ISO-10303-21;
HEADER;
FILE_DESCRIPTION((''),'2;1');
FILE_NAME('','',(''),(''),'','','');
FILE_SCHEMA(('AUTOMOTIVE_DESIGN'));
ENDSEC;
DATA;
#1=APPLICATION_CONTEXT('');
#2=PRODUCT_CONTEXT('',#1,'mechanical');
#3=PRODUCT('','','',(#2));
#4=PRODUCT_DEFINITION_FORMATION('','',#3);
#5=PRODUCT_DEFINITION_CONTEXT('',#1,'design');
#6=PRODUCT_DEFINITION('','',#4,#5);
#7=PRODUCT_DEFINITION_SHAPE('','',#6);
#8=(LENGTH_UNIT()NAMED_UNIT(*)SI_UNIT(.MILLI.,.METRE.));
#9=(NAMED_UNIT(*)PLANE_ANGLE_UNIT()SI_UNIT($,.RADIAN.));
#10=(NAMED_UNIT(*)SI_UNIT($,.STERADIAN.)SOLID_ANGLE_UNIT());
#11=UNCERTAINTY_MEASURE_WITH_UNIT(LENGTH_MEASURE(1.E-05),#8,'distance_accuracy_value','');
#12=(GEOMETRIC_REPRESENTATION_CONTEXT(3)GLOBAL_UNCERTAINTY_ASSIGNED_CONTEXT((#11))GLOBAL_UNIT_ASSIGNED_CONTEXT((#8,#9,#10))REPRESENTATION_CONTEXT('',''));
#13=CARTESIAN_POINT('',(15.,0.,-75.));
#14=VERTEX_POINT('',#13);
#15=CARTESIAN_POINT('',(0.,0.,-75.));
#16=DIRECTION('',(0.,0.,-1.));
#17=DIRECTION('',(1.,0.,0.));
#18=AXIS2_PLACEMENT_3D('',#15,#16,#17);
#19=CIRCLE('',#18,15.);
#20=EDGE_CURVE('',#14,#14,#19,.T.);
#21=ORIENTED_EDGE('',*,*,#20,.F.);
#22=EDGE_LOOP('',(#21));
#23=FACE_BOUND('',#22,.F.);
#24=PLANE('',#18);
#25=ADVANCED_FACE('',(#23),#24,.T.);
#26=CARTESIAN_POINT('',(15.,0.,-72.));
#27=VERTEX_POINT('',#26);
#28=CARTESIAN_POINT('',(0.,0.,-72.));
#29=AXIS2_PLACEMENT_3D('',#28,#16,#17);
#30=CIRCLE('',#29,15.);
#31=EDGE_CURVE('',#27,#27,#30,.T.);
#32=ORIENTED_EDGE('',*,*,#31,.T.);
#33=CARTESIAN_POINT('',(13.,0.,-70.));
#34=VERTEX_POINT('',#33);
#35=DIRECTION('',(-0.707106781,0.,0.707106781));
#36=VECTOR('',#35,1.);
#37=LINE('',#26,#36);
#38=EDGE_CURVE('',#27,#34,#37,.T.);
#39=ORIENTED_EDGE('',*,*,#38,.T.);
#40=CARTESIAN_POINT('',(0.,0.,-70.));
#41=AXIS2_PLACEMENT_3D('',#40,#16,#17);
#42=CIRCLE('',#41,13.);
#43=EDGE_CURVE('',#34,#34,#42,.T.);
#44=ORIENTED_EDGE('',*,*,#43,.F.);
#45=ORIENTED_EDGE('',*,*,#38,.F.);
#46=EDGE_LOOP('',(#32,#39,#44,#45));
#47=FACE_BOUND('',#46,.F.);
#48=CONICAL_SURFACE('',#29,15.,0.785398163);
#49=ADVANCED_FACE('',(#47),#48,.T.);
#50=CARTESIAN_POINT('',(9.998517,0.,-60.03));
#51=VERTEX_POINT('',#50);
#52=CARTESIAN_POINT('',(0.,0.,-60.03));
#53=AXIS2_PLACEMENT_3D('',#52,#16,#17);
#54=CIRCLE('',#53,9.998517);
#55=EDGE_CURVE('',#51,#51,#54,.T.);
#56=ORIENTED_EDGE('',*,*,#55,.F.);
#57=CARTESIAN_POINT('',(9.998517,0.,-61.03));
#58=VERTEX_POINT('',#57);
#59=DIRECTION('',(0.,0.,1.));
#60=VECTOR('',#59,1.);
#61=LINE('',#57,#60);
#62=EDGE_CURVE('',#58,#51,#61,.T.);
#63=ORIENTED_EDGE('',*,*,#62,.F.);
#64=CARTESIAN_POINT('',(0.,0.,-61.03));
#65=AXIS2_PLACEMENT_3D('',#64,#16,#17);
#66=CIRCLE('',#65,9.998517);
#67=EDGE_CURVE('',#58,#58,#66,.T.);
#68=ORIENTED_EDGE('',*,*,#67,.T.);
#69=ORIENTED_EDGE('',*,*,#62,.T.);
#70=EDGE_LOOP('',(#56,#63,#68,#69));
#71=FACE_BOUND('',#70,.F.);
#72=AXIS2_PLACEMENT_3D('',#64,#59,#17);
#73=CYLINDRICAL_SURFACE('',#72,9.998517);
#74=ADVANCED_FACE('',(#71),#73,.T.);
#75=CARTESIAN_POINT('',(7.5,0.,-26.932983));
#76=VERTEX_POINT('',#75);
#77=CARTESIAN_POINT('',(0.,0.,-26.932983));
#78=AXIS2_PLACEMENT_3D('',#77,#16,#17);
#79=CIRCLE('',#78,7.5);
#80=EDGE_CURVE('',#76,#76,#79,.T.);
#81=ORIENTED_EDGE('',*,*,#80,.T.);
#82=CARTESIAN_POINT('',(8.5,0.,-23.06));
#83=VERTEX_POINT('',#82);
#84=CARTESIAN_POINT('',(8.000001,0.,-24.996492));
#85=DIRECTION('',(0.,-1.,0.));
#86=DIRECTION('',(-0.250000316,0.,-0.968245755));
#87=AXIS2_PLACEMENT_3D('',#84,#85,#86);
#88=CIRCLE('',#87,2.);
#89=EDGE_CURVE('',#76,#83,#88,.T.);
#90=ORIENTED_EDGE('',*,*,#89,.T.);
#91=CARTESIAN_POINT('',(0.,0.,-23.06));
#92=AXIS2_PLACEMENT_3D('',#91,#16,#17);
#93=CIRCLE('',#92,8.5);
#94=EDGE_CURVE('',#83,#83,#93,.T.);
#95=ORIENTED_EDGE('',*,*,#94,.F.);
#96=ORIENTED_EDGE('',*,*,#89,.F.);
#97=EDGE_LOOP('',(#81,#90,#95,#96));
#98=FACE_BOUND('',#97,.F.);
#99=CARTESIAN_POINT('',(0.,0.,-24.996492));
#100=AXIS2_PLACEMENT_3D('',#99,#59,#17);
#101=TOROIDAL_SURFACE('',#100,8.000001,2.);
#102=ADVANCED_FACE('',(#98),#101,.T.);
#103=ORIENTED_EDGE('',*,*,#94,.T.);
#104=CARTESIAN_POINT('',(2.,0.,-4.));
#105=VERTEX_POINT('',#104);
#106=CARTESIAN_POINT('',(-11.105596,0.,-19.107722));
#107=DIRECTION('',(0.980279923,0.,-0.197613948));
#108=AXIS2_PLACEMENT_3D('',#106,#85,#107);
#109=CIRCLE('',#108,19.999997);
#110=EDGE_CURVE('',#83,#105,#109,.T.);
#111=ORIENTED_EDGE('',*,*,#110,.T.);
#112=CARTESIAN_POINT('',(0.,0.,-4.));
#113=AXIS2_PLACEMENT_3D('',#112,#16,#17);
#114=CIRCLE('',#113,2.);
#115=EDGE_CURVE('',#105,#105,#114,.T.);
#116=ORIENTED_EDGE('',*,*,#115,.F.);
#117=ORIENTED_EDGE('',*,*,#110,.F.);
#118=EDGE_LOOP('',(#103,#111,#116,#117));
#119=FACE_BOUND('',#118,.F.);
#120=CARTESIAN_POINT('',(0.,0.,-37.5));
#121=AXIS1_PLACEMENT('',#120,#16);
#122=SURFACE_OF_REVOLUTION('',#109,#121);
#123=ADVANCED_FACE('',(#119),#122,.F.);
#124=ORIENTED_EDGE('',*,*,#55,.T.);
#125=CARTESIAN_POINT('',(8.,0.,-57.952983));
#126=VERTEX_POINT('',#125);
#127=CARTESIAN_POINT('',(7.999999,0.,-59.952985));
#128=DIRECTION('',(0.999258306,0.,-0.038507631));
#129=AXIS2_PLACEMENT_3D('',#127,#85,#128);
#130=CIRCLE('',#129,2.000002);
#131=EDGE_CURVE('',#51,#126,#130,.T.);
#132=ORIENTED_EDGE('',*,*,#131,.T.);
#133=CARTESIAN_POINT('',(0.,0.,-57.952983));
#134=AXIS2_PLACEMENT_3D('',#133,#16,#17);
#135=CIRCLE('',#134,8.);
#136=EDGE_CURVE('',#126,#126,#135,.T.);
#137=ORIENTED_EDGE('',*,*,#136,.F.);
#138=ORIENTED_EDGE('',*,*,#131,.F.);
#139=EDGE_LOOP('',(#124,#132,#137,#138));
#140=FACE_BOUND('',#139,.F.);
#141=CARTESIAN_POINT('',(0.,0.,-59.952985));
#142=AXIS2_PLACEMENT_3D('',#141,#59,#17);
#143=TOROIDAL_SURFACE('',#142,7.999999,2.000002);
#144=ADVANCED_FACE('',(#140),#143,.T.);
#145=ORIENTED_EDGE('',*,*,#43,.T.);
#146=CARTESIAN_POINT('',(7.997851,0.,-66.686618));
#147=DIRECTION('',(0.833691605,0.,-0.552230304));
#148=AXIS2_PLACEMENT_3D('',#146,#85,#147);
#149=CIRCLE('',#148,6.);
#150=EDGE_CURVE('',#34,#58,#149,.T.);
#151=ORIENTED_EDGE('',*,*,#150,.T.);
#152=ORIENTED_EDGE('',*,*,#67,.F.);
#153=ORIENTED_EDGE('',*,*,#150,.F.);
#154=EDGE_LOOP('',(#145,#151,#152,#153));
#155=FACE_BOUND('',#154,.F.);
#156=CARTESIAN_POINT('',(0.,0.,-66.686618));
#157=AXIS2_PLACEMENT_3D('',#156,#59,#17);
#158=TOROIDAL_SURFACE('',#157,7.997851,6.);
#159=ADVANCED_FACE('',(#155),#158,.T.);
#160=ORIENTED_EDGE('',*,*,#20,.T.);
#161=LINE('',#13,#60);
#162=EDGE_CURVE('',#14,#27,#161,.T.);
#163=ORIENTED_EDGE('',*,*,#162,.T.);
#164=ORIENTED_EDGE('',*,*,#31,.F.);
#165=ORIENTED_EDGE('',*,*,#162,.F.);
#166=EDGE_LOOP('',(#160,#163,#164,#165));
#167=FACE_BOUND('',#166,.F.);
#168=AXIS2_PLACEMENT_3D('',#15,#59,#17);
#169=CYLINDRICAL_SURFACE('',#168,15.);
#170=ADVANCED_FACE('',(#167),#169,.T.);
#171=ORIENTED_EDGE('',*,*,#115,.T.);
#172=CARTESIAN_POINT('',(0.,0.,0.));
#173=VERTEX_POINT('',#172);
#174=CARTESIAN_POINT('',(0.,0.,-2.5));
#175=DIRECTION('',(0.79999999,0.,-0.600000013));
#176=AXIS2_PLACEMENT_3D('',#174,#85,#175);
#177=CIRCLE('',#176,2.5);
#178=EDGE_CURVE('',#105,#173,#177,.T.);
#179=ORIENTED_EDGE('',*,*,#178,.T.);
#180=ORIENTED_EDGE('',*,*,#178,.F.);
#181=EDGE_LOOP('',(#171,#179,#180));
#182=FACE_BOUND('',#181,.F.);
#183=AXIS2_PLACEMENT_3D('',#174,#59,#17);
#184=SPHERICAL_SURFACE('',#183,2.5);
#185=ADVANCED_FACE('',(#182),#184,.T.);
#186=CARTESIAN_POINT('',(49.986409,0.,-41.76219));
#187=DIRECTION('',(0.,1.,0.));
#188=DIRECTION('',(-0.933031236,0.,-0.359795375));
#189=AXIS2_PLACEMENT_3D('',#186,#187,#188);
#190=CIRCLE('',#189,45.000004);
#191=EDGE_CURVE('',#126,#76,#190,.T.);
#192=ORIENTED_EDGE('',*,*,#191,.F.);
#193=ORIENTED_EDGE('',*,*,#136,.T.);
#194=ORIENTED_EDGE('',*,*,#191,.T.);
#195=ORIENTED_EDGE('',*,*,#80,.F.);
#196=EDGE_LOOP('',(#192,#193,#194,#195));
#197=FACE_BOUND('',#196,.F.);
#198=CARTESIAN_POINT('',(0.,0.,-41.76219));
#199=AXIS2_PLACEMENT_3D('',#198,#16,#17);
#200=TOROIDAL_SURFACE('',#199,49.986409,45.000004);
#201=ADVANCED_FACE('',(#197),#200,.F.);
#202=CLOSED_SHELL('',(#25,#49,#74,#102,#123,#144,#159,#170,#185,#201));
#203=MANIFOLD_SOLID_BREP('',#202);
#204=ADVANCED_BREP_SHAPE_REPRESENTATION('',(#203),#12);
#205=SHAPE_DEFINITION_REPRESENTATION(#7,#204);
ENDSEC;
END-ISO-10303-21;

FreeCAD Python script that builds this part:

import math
import FreeCAD as App
import Part
import Sketcher
Q = App.Units.Quantity

doc = App.newDocument("Part")
body = doc.addObject("PartDesign::Body", "Body")

# Sketch on XZ plane
sketch1 = body.newObject("Sketcher::SketchObject", "Sketch")
sketch1.AttachmentSupport = (doc.getObject("XZ_Plane"), [""])
sketch1.MapMode = "FlatFace"
sketch1.addGeometry(Part.ArcOfCircle(Part.Circle(App.Vector(0, -2.5, 0), App.Vector(0, 0, 1), 2.5), math.radians(-37), math.radians(90)), False)
sketch1.addGeometry(Part.LineSegment(App.Vector(0, 0, 0), App.Vector(0, -75, 0)), False)
sketch1.addGeometry(Part.LineSegment(App.Vector(0, -75, 0), App.Vector(15, -75, 0)), False)
sketch1.addGeometry(Part.LineSegment(App.Vector(15, -75, 0), App.Vector(15, -72, 0)), False)
sketch1.addGeometry(Part.LineSegment(App.Vector(15, -72, 0), App.Vector(13, -70, 0)), False)
sketch1.addGeometry(Part.ArcOfCircle(Part.Circle(App.Vector(8, -66.7, 0), App.Vector(0, 0, 1), 6), math.radians(-34), math.radians(71)), False)
sketch1.addGeometry(Part.LineSegment(App.Vector(10, -61, 0), App.Vector(10, -60, 0)), False)
sketch1.addGeometry(Part.ArcOfCircle(Part.Circle(App.Vector(8, -60, 0), App.Vector(0, 0, 1), 2), math.radians(-2), math.radians(90)), False)
sketch1.addGeometry(Part.ArcOfCircle(Part.Circle(App.Vector(50, -41.8, 0), App.Vector(0, 0, 1), 45), math.radians(161), math.radians(201)), False)
sketch1.addGeometry(Part.ArcOfCircle(Part.Circle(App.Vector(8, -25, 0), App.Vector(0, 0, 1), 2), math.radians(-104), math.radians(76)), False)
sketch1.addGeometry(Part.ArcOfCircle(Part.Circle(App.Vector(-11.1, -19.1, 0), App.Vector(0, 0, 1), 20), math.radians(-11), math.radians(49)), False)
sketch1.addConstraint(Sketcher.Constraint("Coincident", 0, 2, 1, 1))
sketch1.addConstraint(Sketcher.Constraint("Coincident", 1, 2, 2, 1))
sketch1.addConstraint(Sketcher.Constraint("Coincident", 2, 2, 3, 1))
sketch1.addConstraint(Sketcher.Constraint("Coincident", 3, 2, 4, 1))
sketch1.addConstraint(Sketcher.Constraint("Coincident", 4, 2, 5, 1))
sketch1.addConstraint(Sketcher.Constraint("Coincident", 5, 2, 6, 1))
sketch1.addConstraint(Sketcher.Constraint("Coincident", 6, 2, 7, 1))
sketch1.addConstraint(Sketcher.Constraint("Coincident", 7, 2, 8, 2))
sketch1.addConstraint(Sketcher.Constraint("Coincident", 8, 1, 9, 1))
sketch1.addConstraint(Sketcher.Constraint("Coincident", 9, 2, 10, 1))
sketch1.addConstraint(Sketcher.Constraint("Coincident", 10, 2, 0, 1))
sketch1.addConstraint(Sketcher.Constraint("Vertical", 1))
sketch1.addConstraint(Sketcher.Constraint("Horizontal", 2))
sketch1.addConstraint(Sketcher.Constraint("Vertical", 3))
sketch1.addConstraint(Sketcher.Constraint("Vertical", 6))
sketch1.addConstraint(Sketcher.Constraint("Coincident", 0, 2, -1, 1))
sketch1.addConstraint(Sketcher.Constraint("Equal", 7, 9))
sketch1.addConstraint(Sketcher.Constraint("PointOnObject", 0, 3, -2))
sketch1.addConstraint(Sketcher.Constraint("Vertical", 7, 3, 9, 3))
sketch1.addConstraint(Sketcher.Constraint("Vertical", 9, 3, 7, 2))
sketch1.addConstraint(Sketcher.Constraint("Radius", 5, Q("6 mm")))
sketch1.addConstraint(Sketcher.Constraint("Radius", 7, Q("2.000002 mm")))
sketch1.addConstraint(Sketcher.Constraint("Radius", 0, Q("2.5 mm")))
sketch1.addConstraint(Sketcher.Constraint("DistanceX", 2, 1, 2, 2, Q("15 mm")))
sketch1.addConstraint(Sketcher.Constraint("DistanceY", 1, 2, 1, 1, Q("75 mm")))
sketch1.addConstraint(Sketcher.Constraint("DistanceY", 3, 1, 3, 2, Q("3 mm")))
sketch1.addConstraint(Sketcher.Constraint("DistanceY", 6, 1, 6, 2, Q("1 mm")))
sketch1.addConstraint(Sketcher.Constraint("Angle", 4, Q("135 deg")))
sketch1.addConstraint(Sketcher.Constraint("DistanceX", -1, 1, 7, 3, Q("7.999999 mm")))
sketch1.addConstraint(Sketcher.Constraint("DistanceX", -1, 1, 4, 2, Q("13 mm")))
sketch1.addConstraint(Sketcher.Constraint("DistanceX", -1, 1, 10, 2, Q("2 mm")))
sketch1.addConstraint(Sketcher.Constraint("DistanceX", 8, 1, 9, 2, Q("1 mm")))
sketch1.addConstraint(Sketcher.Constraint("DistanceX", -1, 1, 8, 1, Q("7.5 mm")))
sketch1.addConstraint(Sketcher.Constraint("DistanceY", 5, 2, -1, 1, Q("61.03 mm")))
sketch1.addConstraint(Sketcher.Constraint("DistanceY", 9, 2, -1, 1, Q("23.06 mm")))
sketch1.addConstraint(Sketcher.Constraint("DistanceY", 7, 2, 8, 1, Q("31.02 mm")))
sketch1.addConstraint(Sketcher.Constraint("Radius", 8, Q("45.000004 mm")))
sketch1.addConstraint(Sketcher.Constraint("Radius", 10, Q("19.999997 mm")))
revolution = body.newObject("PartDesign::Revolution", "Revolution")
revolution.Profile = sketch1
revolution.ReferenceAxis = (sketch1, ["V_Axis"])
revolution.Angle = 360

doc.recompute()
